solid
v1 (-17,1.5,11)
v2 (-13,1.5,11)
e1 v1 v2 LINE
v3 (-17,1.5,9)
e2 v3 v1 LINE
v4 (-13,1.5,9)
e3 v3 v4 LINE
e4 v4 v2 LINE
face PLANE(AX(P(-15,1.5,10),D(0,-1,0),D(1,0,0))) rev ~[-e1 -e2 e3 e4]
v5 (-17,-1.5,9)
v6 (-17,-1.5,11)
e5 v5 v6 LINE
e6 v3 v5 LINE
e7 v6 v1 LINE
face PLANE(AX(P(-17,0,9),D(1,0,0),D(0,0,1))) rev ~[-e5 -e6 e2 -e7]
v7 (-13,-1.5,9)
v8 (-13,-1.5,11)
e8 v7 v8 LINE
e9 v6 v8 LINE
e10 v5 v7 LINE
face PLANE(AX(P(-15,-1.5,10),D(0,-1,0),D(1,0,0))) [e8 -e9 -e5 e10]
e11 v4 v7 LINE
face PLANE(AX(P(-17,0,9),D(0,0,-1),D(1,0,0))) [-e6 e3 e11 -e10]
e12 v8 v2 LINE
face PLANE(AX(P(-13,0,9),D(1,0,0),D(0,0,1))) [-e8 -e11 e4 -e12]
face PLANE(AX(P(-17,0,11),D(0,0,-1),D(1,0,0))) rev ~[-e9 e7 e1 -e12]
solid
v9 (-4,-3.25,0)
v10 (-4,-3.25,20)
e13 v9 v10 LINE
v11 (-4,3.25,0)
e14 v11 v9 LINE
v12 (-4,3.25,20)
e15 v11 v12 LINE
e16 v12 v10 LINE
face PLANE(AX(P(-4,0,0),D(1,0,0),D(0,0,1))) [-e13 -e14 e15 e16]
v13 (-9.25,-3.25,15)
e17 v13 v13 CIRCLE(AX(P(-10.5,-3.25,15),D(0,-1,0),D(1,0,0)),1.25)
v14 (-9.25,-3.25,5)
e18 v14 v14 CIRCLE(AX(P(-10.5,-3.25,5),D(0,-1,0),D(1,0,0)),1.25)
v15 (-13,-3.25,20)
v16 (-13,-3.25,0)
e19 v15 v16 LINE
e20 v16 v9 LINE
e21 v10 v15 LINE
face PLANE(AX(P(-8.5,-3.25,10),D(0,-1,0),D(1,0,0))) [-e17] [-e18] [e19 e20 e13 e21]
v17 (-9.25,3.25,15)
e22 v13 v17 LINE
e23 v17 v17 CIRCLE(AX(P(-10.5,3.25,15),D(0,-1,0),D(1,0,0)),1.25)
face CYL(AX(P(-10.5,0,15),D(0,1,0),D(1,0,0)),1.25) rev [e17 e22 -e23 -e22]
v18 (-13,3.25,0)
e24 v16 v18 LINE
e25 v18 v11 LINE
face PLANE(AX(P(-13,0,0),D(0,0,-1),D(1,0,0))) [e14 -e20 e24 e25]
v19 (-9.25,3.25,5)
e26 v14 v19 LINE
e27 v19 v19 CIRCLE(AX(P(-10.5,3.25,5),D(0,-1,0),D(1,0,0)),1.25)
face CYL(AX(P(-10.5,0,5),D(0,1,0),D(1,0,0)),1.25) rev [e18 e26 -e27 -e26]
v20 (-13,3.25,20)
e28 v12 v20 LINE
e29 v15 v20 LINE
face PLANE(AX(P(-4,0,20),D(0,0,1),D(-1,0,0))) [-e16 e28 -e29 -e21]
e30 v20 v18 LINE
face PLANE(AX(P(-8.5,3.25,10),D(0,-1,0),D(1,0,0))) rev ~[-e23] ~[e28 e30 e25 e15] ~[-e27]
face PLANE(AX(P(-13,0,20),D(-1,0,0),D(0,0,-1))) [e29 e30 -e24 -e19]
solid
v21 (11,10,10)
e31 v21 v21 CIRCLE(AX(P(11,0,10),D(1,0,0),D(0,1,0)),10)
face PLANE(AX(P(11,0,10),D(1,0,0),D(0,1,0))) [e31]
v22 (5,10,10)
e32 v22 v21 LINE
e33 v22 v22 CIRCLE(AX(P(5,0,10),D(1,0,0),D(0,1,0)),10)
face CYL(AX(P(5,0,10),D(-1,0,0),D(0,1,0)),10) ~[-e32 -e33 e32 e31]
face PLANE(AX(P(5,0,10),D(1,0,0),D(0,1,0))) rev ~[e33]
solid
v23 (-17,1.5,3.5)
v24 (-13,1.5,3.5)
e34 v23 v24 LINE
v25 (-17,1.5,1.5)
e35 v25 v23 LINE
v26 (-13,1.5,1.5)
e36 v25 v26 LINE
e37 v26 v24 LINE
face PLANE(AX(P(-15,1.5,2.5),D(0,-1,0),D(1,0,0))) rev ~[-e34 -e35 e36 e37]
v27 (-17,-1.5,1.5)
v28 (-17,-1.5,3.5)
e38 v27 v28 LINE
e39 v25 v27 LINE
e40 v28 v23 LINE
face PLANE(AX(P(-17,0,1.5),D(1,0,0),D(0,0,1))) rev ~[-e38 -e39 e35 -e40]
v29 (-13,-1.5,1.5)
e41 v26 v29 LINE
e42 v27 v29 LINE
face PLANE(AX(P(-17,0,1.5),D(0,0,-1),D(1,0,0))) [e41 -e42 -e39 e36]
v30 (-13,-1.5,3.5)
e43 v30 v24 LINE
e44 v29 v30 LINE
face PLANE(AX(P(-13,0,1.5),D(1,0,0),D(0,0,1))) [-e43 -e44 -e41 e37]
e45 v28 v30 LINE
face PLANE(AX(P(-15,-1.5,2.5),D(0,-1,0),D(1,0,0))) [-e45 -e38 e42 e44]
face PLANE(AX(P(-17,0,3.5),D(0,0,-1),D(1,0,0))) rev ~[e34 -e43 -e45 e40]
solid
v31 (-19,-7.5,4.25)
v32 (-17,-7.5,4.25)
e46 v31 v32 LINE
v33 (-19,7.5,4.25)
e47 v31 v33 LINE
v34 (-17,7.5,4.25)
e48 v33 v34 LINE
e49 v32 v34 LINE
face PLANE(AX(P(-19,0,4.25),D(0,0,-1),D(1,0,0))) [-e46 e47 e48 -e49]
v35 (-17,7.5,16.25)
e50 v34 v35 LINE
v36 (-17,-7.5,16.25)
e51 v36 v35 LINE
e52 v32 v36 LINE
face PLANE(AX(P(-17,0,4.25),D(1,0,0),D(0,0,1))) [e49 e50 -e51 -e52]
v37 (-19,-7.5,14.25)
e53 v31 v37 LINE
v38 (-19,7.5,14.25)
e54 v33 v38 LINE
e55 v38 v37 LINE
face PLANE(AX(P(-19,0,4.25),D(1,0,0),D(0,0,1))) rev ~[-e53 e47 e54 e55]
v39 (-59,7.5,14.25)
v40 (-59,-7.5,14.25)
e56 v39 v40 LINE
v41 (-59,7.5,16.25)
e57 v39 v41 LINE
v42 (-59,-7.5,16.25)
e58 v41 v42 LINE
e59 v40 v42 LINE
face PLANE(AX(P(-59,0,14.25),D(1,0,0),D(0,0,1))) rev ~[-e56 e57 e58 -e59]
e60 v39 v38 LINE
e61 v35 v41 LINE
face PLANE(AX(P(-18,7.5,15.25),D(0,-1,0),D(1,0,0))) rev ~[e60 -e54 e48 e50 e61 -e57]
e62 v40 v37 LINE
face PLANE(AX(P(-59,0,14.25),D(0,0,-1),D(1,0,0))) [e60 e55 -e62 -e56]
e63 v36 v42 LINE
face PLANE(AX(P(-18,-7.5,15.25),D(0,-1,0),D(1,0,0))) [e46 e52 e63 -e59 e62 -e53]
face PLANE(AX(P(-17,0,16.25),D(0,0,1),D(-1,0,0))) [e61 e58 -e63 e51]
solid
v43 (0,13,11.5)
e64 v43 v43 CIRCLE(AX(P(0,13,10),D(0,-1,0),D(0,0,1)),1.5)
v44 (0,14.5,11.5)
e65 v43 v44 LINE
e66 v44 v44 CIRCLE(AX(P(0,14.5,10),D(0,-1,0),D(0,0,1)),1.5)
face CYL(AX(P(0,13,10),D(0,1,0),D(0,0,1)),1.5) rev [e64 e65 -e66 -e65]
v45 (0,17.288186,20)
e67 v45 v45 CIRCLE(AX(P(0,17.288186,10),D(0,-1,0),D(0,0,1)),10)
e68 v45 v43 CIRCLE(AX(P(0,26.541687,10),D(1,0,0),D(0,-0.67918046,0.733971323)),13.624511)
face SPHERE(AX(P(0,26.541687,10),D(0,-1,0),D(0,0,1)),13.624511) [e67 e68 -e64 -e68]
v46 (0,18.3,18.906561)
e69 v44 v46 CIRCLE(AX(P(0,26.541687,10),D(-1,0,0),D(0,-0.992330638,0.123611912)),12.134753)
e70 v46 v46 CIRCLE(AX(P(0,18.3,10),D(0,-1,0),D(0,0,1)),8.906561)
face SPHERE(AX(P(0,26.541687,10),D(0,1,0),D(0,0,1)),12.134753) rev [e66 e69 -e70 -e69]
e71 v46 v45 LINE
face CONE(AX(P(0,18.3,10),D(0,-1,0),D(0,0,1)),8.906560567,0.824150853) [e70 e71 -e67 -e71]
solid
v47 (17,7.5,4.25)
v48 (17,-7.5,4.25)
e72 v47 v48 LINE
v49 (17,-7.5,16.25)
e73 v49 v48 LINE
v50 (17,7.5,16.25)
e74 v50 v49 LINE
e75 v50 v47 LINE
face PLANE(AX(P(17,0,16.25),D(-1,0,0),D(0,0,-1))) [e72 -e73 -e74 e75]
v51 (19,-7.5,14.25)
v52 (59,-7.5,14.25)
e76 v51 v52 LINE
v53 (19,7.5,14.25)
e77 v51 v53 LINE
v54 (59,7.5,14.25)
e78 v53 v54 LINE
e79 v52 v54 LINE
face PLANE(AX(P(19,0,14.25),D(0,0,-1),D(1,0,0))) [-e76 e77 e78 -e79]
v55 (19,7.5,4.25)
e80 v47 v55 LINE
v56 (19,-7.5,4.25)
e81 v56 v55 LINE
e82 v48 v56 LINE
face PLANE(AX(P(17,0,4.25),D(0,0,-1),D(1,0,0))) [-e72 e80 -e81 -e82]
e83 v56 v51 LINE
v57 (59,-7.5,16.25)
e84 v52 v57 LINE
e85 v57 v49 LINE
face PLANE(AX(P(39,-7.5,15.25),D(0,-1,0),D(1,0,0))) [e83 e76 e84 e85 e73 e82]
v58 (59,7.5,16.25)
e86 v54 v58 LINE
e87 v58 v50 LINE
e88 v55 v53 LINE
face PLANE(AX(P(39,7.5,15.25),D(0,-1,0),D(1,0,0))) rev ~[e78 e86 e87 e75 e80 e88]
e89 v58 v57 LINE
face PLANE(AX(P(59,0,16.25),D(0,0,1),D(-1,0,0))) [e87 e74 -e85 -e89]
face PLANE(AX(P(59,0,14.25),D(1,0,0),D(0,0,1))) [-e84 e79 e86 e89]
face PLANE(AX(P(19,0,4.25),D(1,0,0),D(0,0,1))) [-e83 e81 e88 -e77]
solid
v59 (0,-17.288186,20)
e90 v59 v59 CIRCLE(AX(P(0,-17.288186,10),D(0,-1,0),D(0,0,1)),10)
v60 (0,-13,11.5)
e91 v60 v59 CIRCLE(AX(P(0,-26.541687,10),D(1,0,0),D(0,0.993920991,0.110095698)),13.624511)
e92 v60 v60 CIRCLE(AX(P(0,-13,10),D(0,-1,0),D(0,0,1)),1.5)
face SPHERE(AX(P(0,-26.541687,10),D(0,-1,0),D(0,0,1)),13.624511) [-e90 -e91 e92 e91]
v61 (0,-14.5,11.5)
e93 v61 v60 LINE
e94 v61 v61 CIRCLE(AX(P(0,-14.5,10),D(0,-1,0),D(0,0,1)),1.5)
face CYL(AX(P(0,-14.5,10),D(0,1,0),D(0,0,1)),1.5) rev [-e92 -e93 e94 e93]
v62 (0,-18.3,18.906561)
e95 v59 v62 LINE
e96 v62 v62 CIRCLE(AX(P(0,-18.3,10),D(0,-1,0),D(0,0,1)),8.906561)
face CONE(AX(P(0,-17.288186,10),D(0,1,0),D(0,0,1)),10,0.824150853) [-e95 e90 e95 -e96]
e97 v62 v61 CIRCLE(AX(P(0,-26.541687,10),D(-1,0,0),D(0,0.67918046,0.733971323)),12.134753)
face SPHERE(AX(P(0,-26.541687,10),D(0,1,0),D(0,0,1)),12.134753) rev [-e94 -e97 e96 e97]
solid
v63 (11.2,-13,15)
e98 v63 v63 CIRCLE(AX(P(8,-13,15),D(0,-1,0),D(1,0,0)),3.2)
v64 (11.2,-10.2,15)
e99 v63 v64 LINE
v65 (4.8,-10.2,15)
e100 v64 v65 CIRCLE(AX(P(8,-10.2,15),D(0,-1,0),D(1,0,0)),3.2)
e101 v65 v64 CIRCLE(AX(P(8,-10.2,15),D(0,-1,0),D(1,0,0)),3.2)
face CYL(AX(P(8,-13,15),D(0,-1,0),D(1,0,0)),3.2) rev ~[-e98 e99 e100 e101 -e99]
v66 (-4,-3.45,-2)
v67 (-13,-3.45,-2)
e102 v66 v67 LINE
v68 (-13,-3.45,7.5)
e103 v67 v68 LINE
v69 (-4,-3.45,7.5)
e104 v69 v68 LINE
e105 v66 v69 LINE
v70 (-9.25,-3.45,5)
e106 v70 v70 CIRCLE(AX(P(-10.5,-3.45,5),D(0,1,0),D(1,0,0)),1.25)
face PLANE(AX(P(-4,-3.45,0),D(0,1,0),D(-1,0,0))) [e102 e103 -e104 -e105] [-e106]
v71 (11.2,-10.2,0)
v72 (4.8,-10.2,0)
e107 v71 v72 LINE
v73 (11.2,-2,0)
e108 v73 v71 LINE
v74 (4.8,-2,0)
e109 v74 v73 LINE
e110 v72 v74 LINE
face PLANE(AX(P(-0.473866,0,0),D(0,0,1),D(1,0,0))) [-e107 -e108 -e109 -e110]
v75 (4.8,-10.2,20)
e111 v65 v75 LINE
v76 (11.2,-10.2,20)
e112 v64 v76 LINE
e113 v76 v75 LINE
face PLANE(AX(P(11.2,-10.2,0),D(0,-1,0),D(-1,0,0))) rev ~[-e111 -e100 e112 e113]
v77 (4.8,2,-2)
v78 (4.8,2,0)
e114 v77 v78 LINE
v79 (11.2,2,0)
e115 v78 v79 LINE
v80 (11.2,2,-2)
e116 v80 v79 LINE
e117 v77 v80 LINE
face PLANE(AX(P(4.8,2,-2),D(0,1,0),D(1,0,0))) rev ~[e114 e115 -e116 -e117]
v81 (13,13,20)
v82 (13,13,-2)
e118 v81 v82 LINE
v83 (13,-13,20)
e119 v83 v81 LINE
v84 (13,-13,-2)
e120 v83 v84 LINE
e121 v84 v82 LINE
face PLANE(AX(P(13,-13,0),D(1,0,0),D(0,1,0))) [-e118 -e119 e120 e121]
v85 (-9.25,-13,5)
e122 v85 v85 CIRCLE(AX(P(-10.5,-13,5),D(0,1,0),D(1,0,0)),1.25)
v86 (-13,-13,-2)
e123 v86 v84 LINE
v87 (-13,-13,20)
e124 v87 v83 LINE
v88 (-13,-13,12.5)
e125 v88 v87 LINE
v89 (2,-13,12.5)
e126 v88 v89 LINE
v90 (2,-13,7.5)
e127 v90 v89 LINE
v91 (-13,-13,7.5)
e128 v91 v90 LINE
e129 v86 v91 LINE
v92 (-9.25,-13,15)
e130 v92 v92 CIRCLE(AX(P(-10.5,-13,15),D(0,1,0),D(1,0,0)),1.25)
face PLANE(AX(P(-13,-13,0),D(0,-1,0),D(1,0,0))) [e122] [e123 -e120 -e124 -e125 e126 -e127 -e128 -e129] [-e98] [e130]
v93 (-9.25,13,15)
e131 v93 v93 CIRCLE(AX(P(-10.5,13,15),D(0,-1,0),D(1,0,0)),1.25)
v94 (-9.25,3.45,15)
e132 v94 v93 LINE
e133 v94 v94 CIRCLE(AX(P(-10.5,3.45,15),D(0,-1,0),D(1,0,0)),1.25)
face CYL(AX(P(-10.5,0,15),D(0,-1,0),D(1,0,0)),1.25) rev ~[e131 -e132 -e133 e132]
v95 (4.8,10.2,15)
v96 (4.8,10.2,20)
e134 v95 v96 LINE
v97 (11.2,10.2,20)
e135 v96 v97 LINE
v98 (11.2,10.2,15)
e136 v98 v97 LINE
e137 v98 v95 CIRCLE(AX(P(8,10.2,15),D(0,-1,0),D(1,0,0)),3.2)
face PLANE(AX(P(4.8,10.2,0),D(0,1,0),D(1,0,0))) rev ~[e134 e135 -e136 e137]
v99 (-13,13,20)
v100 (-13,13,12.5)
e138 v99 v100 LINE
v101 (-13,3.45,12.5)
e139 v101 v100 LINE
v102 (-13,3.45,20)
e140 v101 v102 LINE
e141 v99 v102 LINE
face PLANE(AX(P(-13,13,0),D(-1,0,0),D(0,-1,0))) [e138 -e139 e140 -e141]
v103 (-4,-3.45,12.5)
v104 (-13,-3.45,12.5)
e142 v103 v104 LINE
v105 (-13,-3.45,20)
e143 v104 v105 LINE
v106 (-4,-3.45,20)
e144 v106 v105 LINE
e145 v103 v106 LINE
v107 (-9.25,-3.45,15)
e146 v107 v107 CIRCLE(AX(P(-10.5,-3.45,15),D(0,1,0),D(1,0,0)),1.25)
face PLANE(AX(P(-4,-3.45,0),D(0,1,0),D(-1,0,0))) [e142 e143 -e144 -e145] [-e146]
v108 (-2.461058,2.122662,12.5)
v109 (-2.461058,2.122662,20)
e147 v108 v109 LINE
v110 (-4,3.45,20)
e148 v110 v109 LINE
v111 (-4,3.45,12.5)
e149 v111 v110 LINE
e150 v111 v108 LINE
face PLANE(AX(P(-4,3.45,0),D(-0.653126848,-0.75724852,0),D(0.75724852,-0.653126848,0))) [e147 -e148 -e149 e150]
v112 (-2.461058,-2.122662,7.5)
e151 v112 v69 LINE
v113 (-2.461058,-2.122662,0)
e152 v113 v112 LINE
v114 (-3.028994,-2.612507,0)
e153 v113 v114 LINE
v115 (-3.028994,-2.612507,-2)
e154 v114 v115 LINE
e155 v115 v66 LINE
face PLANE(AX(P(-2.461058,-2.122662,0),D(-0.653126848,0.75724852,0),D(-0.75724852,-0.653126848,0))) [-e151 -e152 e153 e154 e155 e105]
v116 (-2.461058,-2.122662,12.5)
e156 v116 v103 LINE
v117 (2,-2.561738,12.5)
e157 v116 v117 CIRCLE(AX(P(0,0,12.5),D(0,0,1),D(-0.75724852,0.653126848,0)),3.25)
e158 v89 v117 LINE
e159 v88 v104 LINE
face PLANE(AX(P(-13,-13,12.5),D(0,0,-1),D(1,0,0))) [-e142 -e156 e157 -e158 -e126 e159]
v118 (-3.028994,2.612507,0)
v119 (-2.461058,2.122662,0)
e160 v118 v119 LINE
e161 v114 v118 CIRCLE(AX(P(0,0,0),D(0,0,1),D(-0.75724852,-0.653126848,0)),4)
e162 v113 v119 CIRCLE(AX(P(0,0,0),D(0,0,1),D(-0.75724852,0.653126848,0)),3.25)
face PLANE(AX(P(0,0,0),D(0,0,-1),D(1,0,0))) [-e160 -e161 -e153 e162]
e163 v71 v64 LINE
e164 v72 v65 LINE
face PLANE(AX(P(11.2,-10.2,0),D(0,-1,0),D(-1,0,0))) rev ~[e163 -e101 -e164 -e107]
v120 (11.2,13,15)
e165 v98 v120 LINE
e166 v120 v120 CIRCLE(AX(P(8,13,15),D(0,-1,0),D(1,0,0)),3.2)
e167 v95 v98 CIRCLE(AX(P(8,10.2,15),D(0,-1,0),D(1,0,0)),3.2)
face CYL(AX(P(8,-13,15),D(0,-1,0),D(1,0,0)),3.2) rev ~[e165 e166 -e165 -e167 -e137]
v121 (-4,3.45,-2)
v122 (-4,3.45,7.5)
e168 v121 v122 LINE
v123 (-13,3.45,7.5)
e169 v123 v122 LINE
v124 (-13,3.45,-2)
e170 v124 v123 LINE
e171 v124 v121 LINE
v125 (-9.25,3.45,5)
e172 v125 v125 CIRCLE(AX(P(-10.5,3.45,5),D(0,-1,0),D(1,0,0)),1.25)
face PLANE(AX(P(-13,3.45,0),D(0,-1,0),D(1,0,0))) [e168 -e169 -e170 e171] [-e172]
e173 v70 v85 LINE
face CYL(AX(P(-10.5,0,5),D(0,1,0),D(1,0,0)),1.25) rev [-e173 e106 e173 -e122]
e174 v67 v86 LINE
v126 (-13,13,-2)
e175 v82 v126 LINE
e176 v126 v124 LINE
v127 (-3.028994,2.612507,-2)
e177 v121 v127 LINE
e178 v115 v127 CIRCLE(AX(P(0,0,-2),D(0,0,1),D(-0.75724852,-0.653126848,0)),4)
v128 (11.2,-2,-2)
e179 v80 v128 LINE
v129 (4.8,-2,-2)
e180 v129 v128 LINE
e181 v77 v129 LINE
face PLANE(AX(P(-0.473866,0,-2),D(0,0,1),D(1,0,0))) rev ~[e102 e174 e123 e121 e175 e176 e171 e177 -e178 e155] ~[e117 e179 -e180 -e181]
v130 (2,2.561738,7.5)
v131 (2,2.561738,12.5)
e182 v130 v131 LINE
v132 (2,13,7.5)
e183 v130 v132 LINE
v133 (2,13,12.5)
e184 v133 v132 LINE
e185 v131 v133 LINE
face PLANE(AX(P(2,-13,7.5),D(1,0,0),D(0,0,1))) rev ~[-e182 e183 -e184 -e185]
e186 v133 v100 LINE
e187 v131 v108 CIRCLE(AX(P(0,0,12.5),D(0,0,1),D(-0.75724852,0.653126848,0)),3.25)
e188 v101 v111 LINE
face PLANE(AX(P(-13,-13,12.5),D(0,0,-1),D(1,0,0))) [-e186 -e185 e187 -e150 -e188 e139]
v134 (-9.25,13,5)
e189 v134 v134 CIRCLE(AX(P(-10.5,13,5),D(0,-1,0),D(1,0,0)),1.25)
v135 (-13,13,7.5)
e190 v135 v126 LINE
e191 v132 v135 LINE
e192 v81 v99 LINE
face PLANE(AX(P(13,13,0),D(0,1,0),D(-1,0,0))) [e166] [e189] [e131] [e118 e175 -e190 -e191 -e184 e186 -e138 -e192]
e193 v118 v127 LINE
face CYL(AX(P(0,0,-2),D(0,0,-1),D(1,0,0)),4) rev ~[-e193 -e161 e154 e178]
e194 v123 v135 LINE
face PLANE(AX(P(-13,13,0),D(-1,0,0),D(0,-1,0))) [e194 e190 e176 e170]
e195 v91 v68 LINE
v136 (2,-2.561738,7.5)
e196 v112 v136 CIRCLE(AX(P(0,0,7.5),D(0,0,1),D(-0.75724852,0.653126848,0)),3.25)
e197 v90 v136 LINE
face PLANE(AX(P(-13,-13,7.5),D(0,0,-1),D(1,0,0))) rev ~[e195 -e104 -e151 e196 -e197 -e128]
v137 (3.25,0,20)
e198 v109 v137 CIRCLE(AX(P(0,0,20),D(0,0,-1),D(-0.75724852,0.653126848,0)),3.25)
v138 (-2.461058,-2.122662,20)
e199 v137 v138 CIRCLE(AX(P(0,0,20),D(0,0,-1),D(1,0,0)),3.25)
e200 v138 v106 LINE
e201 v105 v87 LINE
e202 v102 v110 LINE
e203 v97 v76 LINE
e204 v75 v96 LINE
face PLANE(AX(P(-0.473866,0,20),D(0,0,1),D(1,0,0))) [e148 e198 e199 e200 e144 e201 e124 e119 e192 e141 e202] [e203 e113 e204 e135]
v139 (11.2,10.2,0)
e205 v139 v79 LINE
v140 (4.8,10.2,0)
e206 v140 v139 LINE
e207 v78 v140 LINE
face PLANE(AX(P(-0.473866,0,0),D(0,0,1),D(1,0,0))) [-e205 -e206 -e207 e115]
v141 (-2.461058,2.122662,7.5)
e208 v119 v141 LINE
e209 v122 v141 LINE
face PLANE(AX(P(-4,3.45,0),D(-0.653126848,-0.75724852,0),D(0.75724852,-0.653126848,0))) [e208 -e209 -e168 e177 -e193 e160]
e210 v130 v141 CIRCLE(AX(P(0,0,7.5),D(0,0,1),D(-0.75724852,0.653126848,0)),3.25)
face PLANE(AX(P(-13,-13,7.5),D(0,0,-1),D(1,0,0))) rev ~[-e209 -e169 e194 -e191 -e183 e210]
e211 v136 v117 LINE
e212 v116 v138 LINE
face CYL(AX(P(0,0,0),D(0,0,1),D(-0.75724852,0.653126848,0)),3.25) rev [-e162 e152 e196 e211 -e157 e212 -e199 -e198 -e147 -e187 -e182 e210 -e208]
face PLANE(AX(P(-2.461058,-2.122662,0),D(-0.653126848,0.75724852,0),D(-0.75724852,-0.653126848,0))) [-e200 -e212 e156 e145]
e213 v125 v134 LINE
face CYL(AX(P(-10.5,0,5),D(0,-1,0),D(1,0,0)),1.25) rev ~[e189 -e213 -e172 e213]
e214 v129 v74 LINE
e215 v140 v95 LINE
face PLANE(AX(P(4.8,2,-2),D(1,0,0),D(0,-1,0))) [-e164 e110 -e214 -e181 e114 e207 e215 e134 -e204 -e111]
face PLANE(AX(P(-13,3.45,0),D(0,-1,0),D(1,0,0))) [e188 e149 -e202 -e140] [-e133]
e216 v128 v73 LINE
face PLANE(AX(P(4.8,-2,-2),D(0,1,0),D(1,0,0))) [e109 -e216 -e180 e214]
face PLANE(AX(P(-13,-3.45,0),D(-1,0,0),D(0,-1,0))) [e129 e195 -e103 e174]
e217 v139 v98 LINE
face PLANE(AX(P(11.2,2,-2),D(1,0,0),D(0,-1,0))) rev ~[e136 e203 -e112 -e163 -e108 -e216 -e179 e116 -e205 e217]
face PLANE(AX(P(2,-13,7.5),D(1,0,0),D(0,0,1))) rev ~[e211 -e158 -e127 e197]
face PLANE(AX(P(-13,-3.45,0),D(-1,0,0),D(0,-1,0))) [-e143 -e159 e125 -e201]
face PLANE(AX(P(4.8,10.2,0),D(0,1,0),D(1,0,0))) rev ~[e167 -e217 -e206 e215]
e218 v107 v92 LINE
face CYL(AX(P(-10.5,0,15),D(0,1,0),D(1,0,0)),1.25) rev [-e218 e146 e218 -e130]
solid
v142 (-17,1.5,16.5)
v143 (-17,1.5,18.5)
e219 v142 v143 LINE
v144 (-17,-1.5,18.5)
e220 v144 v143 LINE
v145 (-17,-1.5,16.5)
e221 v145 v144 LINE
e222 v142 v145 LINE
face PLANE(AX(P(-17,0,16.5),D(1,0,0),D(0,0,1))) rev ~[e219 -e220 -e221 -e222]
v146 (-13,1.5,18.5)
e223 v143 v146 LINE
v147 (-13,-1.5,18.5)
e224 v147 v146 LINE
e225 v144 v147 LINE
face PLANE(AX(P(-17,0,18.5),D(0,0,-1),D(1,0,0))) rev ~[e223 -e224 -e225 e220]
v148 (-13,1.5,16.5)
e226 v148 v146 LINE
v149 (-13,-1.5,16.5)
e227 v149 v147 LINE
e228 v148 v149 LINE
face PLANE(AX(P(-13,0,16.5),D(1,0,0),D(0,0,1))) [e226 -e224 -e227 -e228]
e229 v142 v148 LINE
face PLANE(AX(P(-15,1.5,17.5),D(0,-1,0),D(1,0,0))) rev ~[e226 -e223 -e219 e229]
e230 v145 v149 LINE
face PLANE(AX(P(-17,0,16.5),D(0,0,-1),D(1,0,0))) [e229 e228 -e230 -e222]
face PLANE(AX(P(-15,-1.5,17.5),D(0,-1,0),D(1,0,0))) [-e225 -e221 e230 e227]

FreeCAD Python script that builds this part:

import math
import FreeCAD as App
import Part
import Sketcher
Q = App.Units.Quantity

doc = App.newDocument("Part")
params = doc.addObject("Spreadsheet::Sheet", "Params")
for row, (alias, value) in enumerate([
    ("sketch1_diameter", "2.5 mm"),
    ("sketch1_width", "9 mm"),
    ("sketch1_height", "20 mm"),
    ("pad1_length", "6.5 mm"),
    ("sketch2_width", "4 mm"),
    ("sketch2_height", "2 mm"),
    ("pad2_length", "3 mm"),
    ("sketch3_width", "4 mm"),
    ("sketch3_height", "2 mm"),
    ("pad3_length", "3 mm"),
    ("sketch4_width", "4 mm"),
    ("sketch4_height", "2 mm"),
    ("pad4_length", "3 mm"),
    ("sketch5_diameter", "20 mm"),
    ("pad5_length", "6 mm"),
    ("sketch6_width", "9 mm"),
    ("sketch6_width2", "26 mm"),
    ("sketch6_radius", "3.25 mm"),
    ("sketch6_width3", "6.4 mm"),
    ("sketch6_height", "20.4 mm"),
    ("pad6_length", "20 mm"),
    ("sketch7_width", "9 mm"),
    ("sketch7_width2", "26 mm"),
    ("sketch7_radius", "3.25 mm"),
    ("sketch7_height", "9.55 mm"),
    ("pad7_length", "2 mm"),
    ("sketch8_diameter", "2.5 mm"),
    ("sketch9_diameter", "6.4 mm"),
    ("sketch9_width", "15 mm"),
    ("sketch9_height", "5 mm"),
    ("sketch10_diameter", "8 mm"),
    ("pocket3_length", "2 mm"),
    ("sketch11_height", "4 mm"),
    ("sketch11_width", "6.4 mm"),
    ("sketch12_width", "1.5 mm"),
    ("revolution_angle", "360 deg"),
    ("sketch13_width", "1.5 mm"),
    ("revolution2_angle", "360 deg"),
    ("sketch14_width", "42 mm"),
    ("sketch14_width2", "40 mm"),
    ("sketch14_height", "10 mm"),
    ("pad8_length", "15 mm"),
    ("sketch15_width", "42 mm"),
    ("sketch15_width2", "2 mm"),
    ("sketch15_height", "12 mm"),
    ("pad9_length", "15 mm"),
], start=1):
    params.set(f"A{row}", alias)
    params.set(f"B{row}", "=" + value)
    params.setAlias(f"B{row}", alias)

body = doc.addObject("PartDesign::Body", "Body")

# Sketch on XZ plane
sketch1 = body.newObject("Sketcher::SketchObject", "Sketch")
sketch1.AttachmentSupport = (doc.getObject("XZ_Plane"), [""])
sketch1.MapMode = "FlatFace"
sketch1.addGeometry([
    Part.LineSegment(App.Vector(-13, 0, 0), App.Vector(-4, 0, 0)),  # 0
    Part.LineSegment(App.Vector(-4, 0, 0), App.Vector(-4, 20, 0)),  # 1
    Part.LineSegment(App.Vector(-4, 20, 0), App.Vector(-13, 20, 0)),  # 2
    Part.LineSegment(App.Vector(-13, 20, 0), App.Vector(-13, 0, 0)),  # 3
    Part.Circle(App.Vector(-10.5, 5, 0), App.Vector(0, 0, 1), 1.2),  # 4
    Part.Circle(App.Vector(-10.5, 15, 0), App.Vector(0, 0, 1), 1.2),  # 5
], False)
sketch1.addConstraint([
    Sketcher.Constraint("Coincident", 0, 2, 1, 1),
    Sketcher.Constraint("Coincident", 1, 2, 2, 1),
    Sketcher.Constraint("Coincident", 2, 2, 3, 1),
    Sketcher.Constraint("Coincident", 3, 2, 0, 1),
    Sketcher.Constraint("Horizontal", 0),
    Sketcher.Constraint("Vertical", 1),
    Sketcher.Constraint("Horizontal", 2),
    Sketcher.Constraint("Vertical", 3),
    Sketcher.Constraint("Equal", 4, 5),
    Sketcher.Constraint("PointOnObject", 0, 2, -1),
    Sketcher.Constraint("Vertical", 4, 3, 5, 3),
    Sketcher.Constraint("Diameter", 4, Q("2.5 mm")),
    Sketcher.Constraint("DistanceX", 0, 1, 0, 2, Q("9 mm")),
    Sketcher.Constraint("DistanceY", 1, 1, 1, 2, Q("20 mm")),
    Sketcher.Constraint("DistanceY", -1, 1, 4, 3, Q("5 mm")),
    Sketcher.Constraint("DistanceY", -1, 1, 5, 3, Q("15 mm")),
    Sketcher.Constraint("DistanceX", 0, 2, -1, 1, Q("4 mm")),
    Sketcher.Constraint("DistanceX", 4, 3, -1, 1, Q("10.5 mm")),
])
sketch1.setExpression("Constraints[11]", "Params.sketch1_diameter")
sketch1.setExpression("Constraints[12]", "Params.sketch1_width")
sketch1.setExpression("Constraints[13]", "Params.sketch1_height")
pad1 = body.newObject("PartDesign::Pad", "Pad")
pad1.Profile = sketch1
pad1.setExpression("Length", "Params.pad1_length")
pad1.Midplane = True
body2 = doc.addObject("PartDesign::Body", "Body001")

# Sketch on XZ plane
sketch2 = body2.newObject("Sketcher::SketchObject", "Sketch001")
sketch2.AttachmentSupport = (doc.getObject("XZ_Plane001"), [""])
sketch2.MapMode = "FlatFace"
sketch2.addGeometry([
    Part.LineSegment(App.Vector(-17, 18.5, 0), App.Vector(-17, 16.5, 0)),
    Part.LineSegment(App.Vector(-17, 16.5, 0), App.Vector(-13, 16.5, 0)),
    Part.LineSegment(App.Vector(-13, 16.5, 0), App.Vector(-13, 18.5, 0)),
    Part.LineSegment(App.Vector(-13, 18.5, 0), App.Vector(-17, 18.5, 0)),
], False)
sketch2.addConstraint([
    Sketcher.Constraint("Coincident", 0, 2, 1, 1),
    Sketcher.Constraint("Coincident", 1, 2, 2, 1),
    Sketcher.Constraint("Coincident", 2, 2, 3, 1),
    Sketcher.Constraint("Coincident", 3, 2, 0, 1),
    Sketcher.Constraint("Vertical", 0),
    Sketcher.Constraint("Horizontal", 1),
    Sketcher.Constraint("Vertical", 2),
    Sketcher.Constraint("Horizontal", 3),
    Sketcher.Constraint("DistanceX", 1, 1, 1, 2, Q("4 mm")),
    Sketcher.Constraint("DistanceY", 0, 2, 0, 1, Q("2 mm")),
    Sketcher.Constraint("DistanceX", 0, 2, -1, 1, Q("17 mm")),
    Sketcher.Constraint("DistanceY", -1, 1, 0, 2, Q("16.5 mm")),
])
sketch2.setExpression("Constraints[8]", "Params.sketch2_width")
sketch2.setExpression("Constraints[9]", "Params.sketch2_height")
pad2 = body2.newObject("PartDesign::Pad", "Pad001")
pad2.Profile = sketch2
pad2.setExpression("Length", "Params.pad2_length")
pad2.Midplane = True
body3 = doc.addObject("PartDesign::Body", "Body002")

# Sketch on XZ plane
sketch3 = body3.newObject("Sketcher::SketchObject", "Sketch002")
sketch3.AttachmentSupport = (doc.getObject("XZ_Plane002"), [""])
sketch3.MapMode = "FlatFace"
sketch3.addGeometry([
    Part.LineSegment(App.Vector(-17, 11, 0), App.Vector(-17, 9, 0)),
    Part.LineSegment(App.Vector(-17, 9, 0), App.Vector(-13, 9, 0)),
    Part.LineSegment(App.Vector(-13, 9, 0), App.Vector(-13, 11, 0)),
    Part.LineSegment(App.Vector(-13, 11, 0), App.Vector(-17, 11, 0)),
], False)
sketch3.addConstraint([
    Sketcher.Constraint("Coincident", 0, 2, 1, 1),
    Sketcher.Constraint("Coincident", 1, 2, 2, 1),
    Sketcher.Constraint("Coincident", 2, 2, 3, 1),
    Sketcher.Constraint("Coincident", 3, 2, 0, 1),
    Sketcher.Constraint("Vertical", 0),
    Sketcher.Constraint("Horizontal", 1),
    Sketcher.Constraint("Vertical", 2),
    Sketcher.Constraint("Horizontal", 3),
    Sketcher.Constraint("DistanceX", 1, 1, 1, 2, Q("4 mm")),
    Sketcher.Constraint("DistanceY", 0, 2, 0, 1, Q("2 mm")),
    Sketcher.Constraint("DistanceX", 0, 2, -1, 1, Q("17 mm")),
    Sketcher.Constraint("DistanceY", -1, 1, 0, 2, Q("9 mm")),
])
sketch3.setExpression("Constraints[8]", "Params.sketch3_width")
sketch3.setExpression("Constraints[9]", "Params.sketch3_height")
pad3 = body3.newObject("PartDesign::Pad", "Pad002")
pad3.Profile = sketch3
pad3.setExpression("Length", "Params.pad3_length")
pad3.Midplane = True
body4 = doc.addObject("PartDesign::Body", "Body003")

# Sketch on XZ plane
sketch4 = body4.newObject("Sketcher::SketchObject", "Sketch003")
sketch4.AttachmentSupport = (doc.getObject("XZ_Plane003"), [""])
sketch4.MapMode = "FlatFace"
sketch4.addGeometry([
    Part.LineSegment(App.Vector(-17, 3.5, 0), App.Vector(-17, 1.5, 0)),
    Part.LineSegment(App.Vector(-17, 1.5, 0), App.Vector(-13, 1.5, 0)),
    Part.LineSegment(App.Vector(-13, 1.5, 0), App.Vector(-13, 3.5, 0)),
    Part.LineSegment(App.Vector(-13, 3.5, 0), App.Vector(-17, 3.5, 0)),
], False)
sketch4.addConstraint([
    Sketcher.Constraint("Coincident", 0, 2, 1, 1),
    Sketcher.Constraint("Coincident", 1, 2, 2, 1),
    Sketcher.Constraint("Coincident", 2, 2, 3, 1),
    Sketcher.Constraint("Coincident", 3, 2, 0, 1),
    Sketcher.Constraint("Vertical", 0),
    Sketcher.Constraint("Horizontal", 1),
    Sketcher.Constraint("Vertical", 2),
    Sketcher.Constraint("Horizontal", 3),
    Sketcher.Constraint("DistanceX", 1, 1, 1, 2, Q("4 mm")),
    Sketcher.Constraint("DistanceY", 0, 2, 0, 1, Q("2 mm")),
    Sketcher.Constraint("DistanceX", 0, 2, -1, 1, Q("17 mm")),
    Sketcher.Constraint("DistanceY", -1, 1, 0, 2, Q("1.5 mm")),
])
sketch4.setExpression("Constraints[8]", "Params.sketch4_width")
sketch4.setExpression("Constraints[9]", "Params.sketch4_height")
pad4 = body4.newObject("PartDesign::Pad", "Pad003")
pad4.Profile = sketch4
pad4.setExpression("Length", "Params.pad4_length")
pad4.Midplane = True
body5 = doc.addObject("PartDesign::Body", "Body004")

# Sketch on YZ plane
sketch5 = body5.newObject("Sketcher::SketchObject", "Sketch004")
sketch5.AttachmentSupport = (doc.getObject("YZ_Plane004"), [""])
sketch5.MapMode = "FlatFace"
sketch5.AttachmentOffset = App.Placement(App.Vector(0, 0, 5), App.Rotation())
sketch5.addGeometry(Part.Circle(App.Vector(0, 10, 0), App.Vector(0, 0, 1), 10), False)
sketch5.addConstraint([
    Sketcher.Constraint("PointOnObject", 0, 3, -2),
    Sketcher.Constraint("Diameter", 0, Q("20 mm")),
    Sketcher.Constraint("DistanceY", -1, 1, 0, 3, Q("10 mm")),
])
sketch5.setExpression("Constraints[1]", "Params.sketch5_diameter")
pad5 = body5.newObject("PartDesign::Pad", "Pad004")
pad5.Profile = sketch5
pad5.setExpression("Length", "Params.pad5_length")
body6 = doc.addObject("PartDesign::Body", "Body005")

# Sketch on XY plane
sketch6 = body6.newObject("Sketcher::SketchObject", "Sketch005")
sketch6.AttachmentSupport = (doc.getObject("XY_Plane005"), [""])
sketch6.MapMode = "FlatFace"
sketch6.addGeometry([
    Part.LineSegment(App.Vector(-13, 13, 0), App.Vector(-13, 3.5, 0)),  # 0
    Part.LineSegment(App.Vector(-13, 3.5, 0), App.Vector(-4, 3.5, 0)),  # 1
    Part.LineSegment(App.Vector(-4, 3.5, 0), App.Vector(-2.5, 2.1, 0)),  # 2
    Part.ArcOfCircle(Part.Circle(App.Vector(0, 0, 0), App.Vector(0, 0, 1), 3.2), math.radians(0), math.radians(139)),  # 3
    Part.ArcOfCircle(Part.Circle(App.Vector(0, 0, 0), App.Vector(0, 0, 1), 3.2), math.radians(-139), math.radians(0)),  # 4
    Part.LineSegment(App.Vector(-2.5, -2.1, 0), App.Vector(-4, -3.5, 0)),  # 5
    Part.LineSegment(App.Vector(-4, -3.5, 0), App.Vector(-13, -3.5, 0)),  # 6
    Part.LineSegment(App.Vector(-13, -3.5, 0), App.Vector(-13, -13, 0)),  # 7
    Part.LineSegment(App.Vector(-13, -13, 0), App.Vector(13, -13, 0)),  # 8
    Part.LineSegment(App.Vector(13, -13, 0), App.Vector(13, 13, 0)),  # 9
    Part.LineSegment(App.Vector(13, 13, 0), App.Vector(-13, 13, 0)),  # 10
    Part.LineSegment(App.Vector(4.8, 10.2, 0), App.Vector(11.2, 10.2, 0)),  # 11
    Part.LineSegment(App.Vector(11.2, 10.2, 0), App.Vector(11.2, -10.2, 0)),  # 12
    Part.LineSegment(App.Vector(11.2, -10.2, 0), App.Vector(4.8, -10.2, 0)),  # 13
    Part.LineSegment(App.Vector(4.8, -10.2, 0), App.Vector(4.8, 10.2, 0)),  # 14
], False)
sketch6.addConstraint([
    Sketcher.Constraint("Coincident", 0, 2, 1, 1),
    Sketcher.Constraint("Coincident", 1, 2, 2, 1),
    Sketcher.Constraint("Coincident", 2, 2, 3, 2),
    Sketcher.Constraint("Tangent", 3, 1, 4, 2),
    Sketcher.Constraint("Coincident", 4, 1, 5, 1),
    Sketcher.Constraint("Coincident", 5, 2, 6, 1),
    Sketcher.Constraint("Coincident", 6, 2, 7, 1),
    Sketcher.Constraint("Coincident", 7, 2, 8, 1),
    Sketcher.Constraint("Coincident", 8, 2, 9, 1),
    Sketcher.Constraint("Coincident", 9, 2, 10, 1),
    Sketcher.Constraint("Coincident", 10, 2, 0, 1),
    Sketcher.Constraint("Coincident", 11, 2, 12, 1),
    Sketcher.Constraint("Coincident", 12, 2, 13, 1),
    Sketcher.Constraint("Coincident", 13, 2, 14, 1),
    Sketcher.Constraint("Coincident", 14, 2, 11, 1),
    Sketcher.Constraint("Vertical", 0),
    Sketcher.Constraint("Horizontal", 1),
    Sketcher.Constraint("Horizontal", 6),
    Sketcher.Constraint("Vertical", 7),
    Sketcher.Constraint("Horizontal", 8),
    Sketcher.Constraint("Vertical", 9),
    Sketcher.Constraint("Horizontal", 10),
    Sketcher.Constraint("Horizontal", 11),
    Sketcher.Constraint("Vertical", 12),
    Sketcher.Constraint("Horizontal", 13),
    Sketcher.Constraint("Vertical", 14),
    Sketcher.Constraint("Coincident", 3, 3, -1, 1),
    Sketcher.Constraint("Equal", 3, 4),
    Sketcher.Constraint("Symmetric", 7, 2, 9, 2, -1, 1),
    Sketcher.Constraint("Symmetric", 1, 2, 5, 2, -1),
    Sketcher.Constraint("PointOnObject", 3, 1, -1),
    Sketcher.Constraint("Vertical", 2, 2, 4, 1),
    Sketcher.Constraint("Vertical", 0, 2, 6, 2),
    Sketcher.Constraint("Equal", 10, 9),
    Sketcher.Constraint("DistanceX", 1, 1, 1, 2, Q("9 mm")),
    Sketcher.Constraint("DistanceX", 8, 1, 8, 2, Q("26 mm")),
    Sketcher.Constraint("Radius", 3, Q("3.25 mm")),
    Sketcher.Constraint("DistanceX", 11, 1, 11, 2, Q("6.4 mm")),
    Sketcher.Constraint("DistanceY", 12, 2, 12, 1, Q("20.4 mm")),
    Sketcher.Constraint("DistanceY", 0, 2, 0, 1, Q("9.55 mm")),
    Sketcher.Constraint("DistanceX", -1, 1, 11, 2, Q("11.2 mm")),
    Sketcher.Constraint("DistanceY", -1, 1, 11, 2, Q("10.2 mm")),
    Sketcher.Constraint("DistanceX", 2, 2, -1, 1, Q("2.461058 mm")),
])
sketch6.setExpression("Constraints[34]", "Params.sketch6_width")
sketch6.setExpression("Constraints[35]", "Params.sketch6_width2")
sketch6.setExpression("Constraints[36]", "Params.sketch6_radius")
sketch6.setExpression("Constraints[37]", "Params.sketch6_width3")
sketch6.setExpression("Constraints[38]", "Params.sketch6_height")
pad6 = body6.newObject("PartDesign::Pad", "Pad005")
pad6.Profile = sketch6
pad6.setExpression("Length", "Params.pad6_length")

# Sketch on XY plane
sketch7 = body6.newObject("Sketcher::SketchObject", "Sketch006")
sketch7.AttachmentSupport = (doc.getObject("XY_Plane005"), [""])
sketch7.MapMode = "FlatFace"
sketch7.addGeometry([
    Part.LineSegment(App.Vector(-13, 13, 0), App.Vector(-13, 3.5, 0)),  # 0
    Part.LineSegment(App.Vector(-13, 3.5, 0), App.Vector(-4, 3.5, 0)),  # 1
    Part.LineSegment(App.Vector(-4, 3.5, 0), App.Vector(-2.5, 2.1, 0)),  # 2
    Part.ArcOfCircle(Part.Circle(App.Vector(0, 0, 0), App.Vector(0, 0, 1), 3.2), math.radians(0), math.radians(139)),  # 3
    Part.ArcOfCircle(Part.Circle(App.Vector(0, 0, 0), App.Vector(0, 0, 1), 3.2), math.radians(-139), math.radians(0)),  # 4
    Part.LineSegment(App.Vector(-2.5, -2.1, 0), App.Vector(-4, -3.5, 0)),  # 5
    Part.LineSegment(App.Vector(-4, -3.5, 0), App.Vector(-13, -3.5, 0)),  # 6
    Part.LineSegment(App.Vector(-13, -3.5, 0), App.Vector(-13, -13, 0)),  # 7
    Part.LineSegment(App.Vector(-13, -13, 0), App.Vector(13, -13, 0)),  # 8
    Part.LineSegment(App.Vector(13, -13, 0), App.Vector(13, 13, 0)),  # 9
    Part.LineSegment(App.Vector(13, 13, 0), App.Vector(-13, 13, 0)),  # 10
], False)
sketch7.addConstraint([
    Sketcher.Constraint("Coincident", 0, 2, 1, 1),
    Sketcher.Constraint("Coincident", 1, 2, 2, 1),
    Sketcher.Constraint("Coincident", 2, 2, 3, 2),
    Sketcher.Constraint("Tangent", 3, 1, 4, 2),
    Sketcher.Constraint("Coincident", 4, 1, 5, 1),
    Sketcher.Constraint("Coincident", 5, 2, 6, 1),
    Sketcher.Constraint("Coincident", 6, 2, 7, 1),
    Sketcher.Constraint("Coincident", 7, 2, 8, 1),
    Sketcher.Constraint("Coincident", 8, 2, 9, 1),
    Sketcher.Constraint("Coincident", 9, 2, 10, 1),
    Sketcher.Constraint("Coincident", 10, 2, 0, 1),
    Sketcher.Constraint("Vertical", 0),
    Sketcher.Constraint("Horizontal", 1),
    Sketcher.Constraint("Horizontal", 6),
    Sketcher.Constraint("Vertical", 7),
    Sketcher.Constraint("Horizontal", 8),
    Sketcher.Constraint("Vertical", 9),
    Sketcher.Constraint("Horizontal", 10),
    Sketcher.Constraint("Coincident", 3, 3, -1, 1),
    Sketcher.Constraint("Equal", 3, 4),
    Sketcher.Constraint("Symmetric", 7, 2, 9, 2, -1, 1),
    Sketcher.Constraint("Symmetric", 1, 2, 5, 2, -1),
    Sketcher.Constraint("PointOnObject", 3, 1, -1),
    Sketcher.Constraint("Vertical", 2, 2, 4, 1),
    Sketcher.Constraint("Vertical", 0, 2, 6, 2),
    Sketcher.Constraint("Equal", 10, 9),
    Sketcher.Constraint("DistanceX", 1, 1, 1, 2, Q("9 mm")),
    Sketcher.Constraint("DistanceX", 8, 1, 8, 2, Q("26 mm")),
    Sketcher.Constraint("Radius", 3, Q("3.25 mm")),
    Sketcher.Constraint("DistanceY", 0, 2, 0, 1, Q("9.55 mm")),
    Sketcher.Constraint("DistanceX", 2, 2, -1, 1, Q("2.461058 mm")),
])
sketch7.setExpression("Constraints[26]", "Params.sketch7_width")
sketch7.setExpression("Constraints[27]", "Params.sketch7_width2")
sketch7.setExpression("Constraints[28]", "Params.sketch7_radius")
sketch7.setExpression("Constraints[29]", "Params.sketch7_height")
pad7 = body6.newObject("PartDesign::Pad", "Pad006")
pad7.Profile = sketch7
pad7.setExpression("Length", "Params.pad7_length")
pad7.Reversed = True

# Sketch on XZ plane
sketch8 = body6.newObject("Sketcher::SketchObject", "Sketch007")
sketch8.AttachmentSupport = (doc.getObject("XZ_Plane005"), [""])
sketch8.MapMode = "FlatFace"
sketch8.addGeometry([
    Part.Circle(App.Vector(-10.5, 15, 0), App.Vector(0, 0, 1), 1.2),
    Part.Circle(App.Vector(-10.5, 5, 0), App.Vector(0, 0, 1), 1.2),
], False)
sketch8.addConstraint([
    Sketcher.Constraint("Equal", 0, 1),
    Sketcher.Constraint("Vertical", 0, 3, 1, 3),
    Sketcher.Constraint("Diameter", 0, Q("2.5 mm")),
    Sketcher.Constraint("DistanceY", -1, 1, 0, 3, Q("15 mm")),
    Sketcher.Constraint("DistanceY", -1, 1, 1, 3, Q("5 mm")),
    Sketcher.Constraint("DistanceX", 0, 3, -1, 1, Q("10.5 mm")),
])
sketch8.setExpression("Constraints[2]", "Params.sketch8_diameter")
pocket1 = body6.newObject("PartDesign::Pocket", "Pocket")
pocket1.Profile = sketch8
pocket1.Type = "ThroughAll"
pocket1.Midplane = True

# Sketch on XZ plane
sketch9 = body6.newObject("Sketcher::SketchObject", "Sketch008")
sketch9.AttachmentSupport = (doc.getObject("XZ_Plane005"), [""])
sketch9.MapMode = "FlatFace"
sketch9.AttachmentOffset = App.Placement(App.Vector(0, 0, 13), App.Rotation())
sketch9.addGeometry([
    Part.LineSegment(App.Vector(-13, 12.5, 0), App.Vector(-13, 7.5, 0)),  # 0
    Part.LineSegment(App.Vector(-13, 7.5, 0), App.Vector(2, 7.5, 0)),  # 1
    Part.LineSegment(App.Vector(2, 7.5, 0), App.Vector(2, 12.5, 0)),  # 2
    Part.LineSegment(App.Vector(2, 12.5, 0), App.Vector(-13, 12.5, 0)),  # 3
    Part.Circle(App.Vector(8, 15, 0), App.Vector(0, 0, 1), 3.2),  # 4
], False)
sketch9.addConstraint([
    Sketcher.Constraint("Coincident", 0, 2, 1, 1),
    Sketcher.Constraint("Coincident", 1, 2, 2, 1),
    Sketcher.Constraint("Coincident", 2, 2, 3, 1),
    Sketcher.Constraint("Coincident", 3, 2, 0, 1),
    Sketcher.Constraint("Vertical", 0),
    Sketcher.Constraint("Horizontal", 1),
    Sketcher.Constraint("Vertical", 2),
    Sketcher.Constraint("Horizontal", 3),
    Sketcher.Constraint("Diameter", 4, Q("6.4 mm")),
    Sketcher.Constraint("DistanceX", 1, 1, 1, 2, Q("15 mm")),
    Sketcher.Constraint("DistanceY", 0, 2, 0, 1, Q("5 mm")),
    Sketcher.Constraint("DistanceX", -1, 1, 4, 3, Q("8 mm")),
    Sketcher.Constraint("DistanceY", -1, 1, 4, 3, Q("15 mm")),
    Sketcher.Constraint("DistanceX", 0, 2, -1, 1, Q("13 mm")),
    Sketcher.Constraint("DistanceY", -1, 1, 0, 2, Q("7.5 mm")),
])
sketch9.setExpression("Constraints[8]", "Params.sketch9_diameter")
sketch9.setExpression("Constraints[9]", "Params.sketch9_width")
sketch9.setExpression("Constraints[10]", "Params.sketch9_height")
pocket2 = body6.newObject("PartDesign::Pocket", "Pocket001")
pocket2.Profile = sketch9
pocket2.Type = "ThroughAll"

# Sketch on XY plane
sketch10 = body6.newObject("Sketcher::SketchObject", "Sketch009")
sketch10.AttachmentSupport = (doc.getObject("XY_Plane005"), [""])
sketch10.MapMode = "FlatFace"
sketch10.AttachmentOffset = App.Placement(App.Vector(0, 0, -2), App.Rotation())
sketch10.addGeometry(Part.Circle(App.Vector(0, 0, 0), App.Vector(0, 0, 1), 4), False)
sketch10.addConstraint([
    Sketcher.Constraint("Coincident", 0, 3, -1, 1),
    Sketcher.Constraint("Diameter", 0, Q("8 mm")),
])
sketch10.setExpression("Constraints[1]", "Params.sketch10_diameter")
pocket3 = body6.newObject("PartDesign::Pocket", "Pocket002")
pocket3.Profile = sketch10
pocket3.setExpression("Length", "Params.pocket3_length")
pocket3.Reversed = True

# Sketch on XY plane
sketch11 = body6.newObject("Sketcher::SketchObject", "Sketch010")
sketch11.AttachmentSupport = (doc.getObject("XY_Plane005"), [""])
sketch11.MapMode = "FlatFace"
sketch11.AttachmentOffset = App.Placement(App.Vector(0, 0, -2), App.Rotation())
sketch11.addGeometry([
    Part.LineSegment(App.Vector(4.8, -2, 0), App.Vector(4.8, 2, 0)),
    Part.LineSegment(App.Vector(4.8, 2, 0), App.Vector(11.2, 2, 0)),
    Part.LineSegment(App.Vector(11.2, 2, 0), App.Vector(11.2, -2, 0)),
    Part.LineSegment(App.Vector(11.2, -2, 0), App.Vector(4.8, -2, 0)),
], False)
sketch11.addConstraint([
    Sketcher.Constraint("Coincident", 0, 2, 1, 1),
    Sketcher.Constraint("Coincident", 1, 2, 2, 1),
    Sketcher.Constraint("Coincident", 2, 2, 3, 1),
    Sketcher.Constraint("Coincident", 3, 2, 0, 1),
    Sketcher.Constraint("Vertical", 0),
    Sketcher.Constraint("Horizontal", 1),
    Sketcher.Constraint("Vertical", 2),
    Sketcher.Constraint("Horizontal", 3),
    Sketcher.Constraint("DistanceY", 0, 1, 0, 2, Q("4 mm")),
    Sketcher.Constraint("DistanceX", 1, 1, 1, 2, Q("6.4 mm")),
    Sketcher.Constraint("DistanceY", -1, 1, 0, 2, Q("2 mm")),
    Sketcher.Constraint("DistanceX", -1, 1, 0, 2, Q("4.8 mm")),
])
sketch11.setExpression("Constraints[8]", "Params.sketch11_height")
sketch11.setExpression("Constraints[9]", "Params.sketch11_width")
pocket4 = body6.newObject("PartDesign::Pocket", "Pocket003")
pocket4.Profile = sketch11
pocket4.Type = "ThroughAll"
pocket4.Reversed = True
body7 = doc.addObject("PartDesign::Body", "Body006")

# Sketch on YZ plane
sketch12 = body7.newObject("Sketcher::SketchObject", "Sketch011")
sketch12.AttachmentSupport = (doc.getObject("YZ_Plane006"), [""])
sketch12.MapMode = "FlatFace"
sketch12.addGeometry([
    Part.LineSegment(App.Vector(-14.5, 11.5, 0), App.Vector(-13, 11.5, 0)),
    Part.ArcOfCircle(Part.Circle(App.Vector(-26.5, 10, 0), App.Vector(0, 0, 1), 13.6), math.radians(6), math.radians(47)),
    Part.LineSegment(App.Vector(-17.3, 20, 0), App.Vector(-18.3, 18.9, 0)),
    Part.ArcOfCircle(Part.Circle(App.Vector(-26.5, 10, 0), App.Vector(0, 0, 1), 12.1), math.radians(7), math.radians(47)),
], False)
sketch12.addGeometry(Part.LineSegment(App.Vector(-13, 10, 0), App.Vector(-26.5, 10, 0)), True)  # axis
sketch12.addConstraint([
    Sketcher.Constraint("Coincident", 0, 2, 1, 1),
    Sketcher.Constraint("Coincident", 1, 2, 2, 1),
    Sketcher.Constraint("Coincident", 2, 2, 3, 2),
    Sketcher.Constraint("Coincident", 3, 1, 0, 1),
    Sketcher.Constraint("Horizontal", 0),
    Sketcher.Constraint("Horizontal", 4),
    Sketcher.Constraint("Coincident", 3, 3, 1, 3),
    Sketcher.Constraint("Coincident", 4, 2, 1, 3),
    Sketcher.Constraint("Vertical", 0, 2, 4, 1),
    Sketcher.Constraint("DistanceX", 0, 1, 0, 2, Q("1.5 mm")),
    Sketcher.Constraint("DistanceY", -1, 1, 1, 3, Q("10 mm")),
    Sketcher.Constraint("DistanceX", 0, 2, -1, 1, Q("13 mm")),
    Sketcher.Constraint("DistanceY", -1, 1, 1, 2, Q("20 mm")),
    Sketcher.Constraint("DistanceY", -1, 1, 0, 2, Q("11.5 mm")),
    Sketcher.Constraint("DistanceX", 2, 2, -1, 1, Q("18.3 mm")),
    Sketcher.Constraint("Radius", 1, Q("13.624511 mm")),
])
sketch12.setExpression("Constraints[9]", "Params.sketch12_width")
revolution = body7.newObject("PartDesign::Revolution", "Revolution")
revolution.Profile = sketch12
revolution.ReferenceAxis = (sketch12, ["Axis0"])
revolution.setExpression("Angle", "Params.revolution_angle")
body8 = doc.addObject("PartDesign::Body", "Body007")

# Sketch on YZ plane
sketch13 = body8.newObject("Sketcher::SketchObject", "Sketch012")
sketch13.AttachmentSupport = (doc.getObject("YZ_Plane007"), [""])
sketch13.MapMode = "FlatFace"
sketch13.addGeometry([
    Part.ArcOfCircle(Part.Circle(App.Vector(26.5, 10, 0), App.Vector(0, 0, 1), 13.6), math.radians(133), math.radians(174)),
    Part.LineSegment(App.Vector(13, 11.5, 0), App.Vector(14.5, 11.5, 0)),
    Part.ArcOfCircle(Part.Circle(App.Vector(26.5, 10, 0), App.Vector(0, 0, 1), 12.1), math.radians(133), math.radians(173)),
    Part.LineSegment(App.Vector(18.3, 18.9, 0), App.Vector(17.3, 20, 0)),
], False)
sketch13.addGeometry(Part.LineSegment(App.Vector(26.5, 10, 0), App.Vector(13, 10, 0)), True)  # axis
sketch13.addConstraint([
    Sketcher.Constraint("Coincident", 0, 2, 1, 1),
    Sketcher.Constraint("Coincident", 1, 2, 2, 2),
    Sketcher.Constraint("Coincident", 2, 1, 3, 1),
    Sketcher.Constraint("Coincident", 3, 2, 0, 1),
    Sketcher.Constraint("Horizontal", 1),
    Sketcher.Constraint("Horizontal", 4),
    Sketcher.Constraint("Coincident", 2, 3, 0, 3),
    Sketcher.Constraint("Coincident", 4, 1, 0, 3),
    Sketcher.Constraint("Vertical", 0, 2, 4, 2),
    Sketcher.Constraint("DistanceX", 1, 1, 1, 2, Q("1.5 mm")),
    Sketcher.Constraint("DistanceY", -1, 1, 0, 3, Q("10 mm")),
    Sketcher.Constraint("DistanceX", -1, 1, 0, 2, Q("13 mm")),
    Sketcher.Constraint("DistanceY", -1, 1, 3, 2, Q("20 mm")),
    Sketcher.Constraint("DistanceY", -1, 1, 0, 2, Q("11.5 mm")),
    Sketcher.Constraint("DistanceX", -1, 1, 2, 1, Q("18.3 mm")),
    Sketcher.Constraint("Radius", 0, Q("13.624511 mm")),
])
sketch13.setExpression("Constraints[9]", "Params.sketch13_width")
revolution2 = body8.newObject("PartDesign::Revolution", "Revolution001")
revolution2.Profile = sketch13
revolution2.ReferenceAxis = (sketch13, ["Axis0"])
revolution2.setExpression("Angle", "Params.revolution2_angle")
body9 = doc.addObject("PartDesign::Body", "Body008")

# Sketch on XZ plane
sketch14 = body9.newObject("Sketcher::SketchObject", "Sketch013")
sketch14.AttachmentSupport = (doc.getObject("XZ_Plane008"), [""])
sketch14.MapMode = "FlatFace"
sketch14.addGeometry([
    Part.LineSegment(App.Vector(-17, 16.2, 0), App.Vector(-59, 16.2, 0)),  # 0
    Part.LineSegment(App.Vector(-59, 16.2, 0), App.Vector(-59, 14.2, 0)),  # 1
    Part.LineSegment(App.Vector(-59, 14.2, 0), App.Vector(-19, 14.2, 0)),  # 2
    Part.LineSegment(App.Vector(-19, 14.2, 0), App.Vector(-19, 4.2, 0)),  # 3
    Part.LineSegment(App.Vector(-19, 4.2, 0), App.Vector(-17, 4.2, 0)),  # 4
    Part.LineSegment(App.Vector(-17, 4.2, 0), App.Vector(-17, 16.2, 0)),  # 5
], False)
sketch14.addConstraint([
    Sketcher.Constraint("Coincident", 0, 2, 1, 1),
    Sketcher.Constraint("Coincident", 1, 2, 2, 1),
    Sketcher.Constraint("Coincident", 2, 2, 3, 1),
    Sketcher.Constraint("Coincident", 3, 2, 4, 1),
    Sketcher.Constraint("Coincident", 4, 2, 5, 1),
    Sketcher.Constraint("Coincident", 5, 2, 0, 1),
    Sketcher.Constraint("Horizontal", 0),
    Sketcher.Constraint("Vertical", 1),
    Sketcher.Constraint("Horizontal", 2),
    Sketcher.Constraint("Vertical", 3),
    Sketcher.Constraint("Horizontal", 4),
    Sketcher.Constraint("Vertical", 5),
    Sketcher.Constraint("Equal", 4, 1),
    Sketcher.Constraint("DistanceX", 0, 2, 0, 1, Q("42 mm")),
    Sketcher.Constraint("DistanceX", 2, 1, 2, 2, Q("40 mm")),
    Sketcher.Constraint("DistanceY", 3, 2, 3, 1, Q("10 mm")),
    Sketcher.Constraint("DistanceX", 0, 2, -1, 1, Q("59 mm")),
    Sketcher.Constraint("DistanceY", -1, 1, 0, 2, Q("16.25 mm")),
])
sketch14.setExpression("Constraints[13]", "Params.sketch14_width")
sketch14.setExpression("Constraints[14]", "Params.sketch14_width2")
sketch14.setExpression("Constraints[15]", "Params.sketch14_height")
pad8 = body9.newObject("PartDesign::Pad", "Pad007")
pad8.Profile = sketch14
pad8.setExpression("Length", "Params.pad8_length")
pad8.Midplane = True
body10 = doc.addObject("PartDesign::Body", "Body009")

# Sketch on XZ plane
sketch15 = body10.newObject("Sketcher::SketchObject", "Sketch014")
sketch15.AttachmentSupport = (doc.getObject("XZ_Plane009"), [""])
sketch15.MapMode = "FlatFace"
sketch15.addGeometry([
    Part.LineSegment(App.Vector(59, 14.2, 0), App.Vector(59, 16.2, 0)),  # 0
    Part.LineSegment(App.Vector(59, 16.2, 0), App.Vector(17, 16.2, 0)),  # 1
    Part.LineSegment(App.Vector(17, 16.2, 0), App.Vector(17, 4.2, 0)),  # 2
    Part.LineSegment(App.Vector(17, 4.2, 0), App.Vector(19, 4.2, 0)),  # 3
    Part.LineSegment(App.Vector(19, 4.2, 0), App.Vector(19, 14.2, 0)),  # 4
    Part.LineSegment(App.Vector(19, 14.2, 0), App.Vector(59, 14.2, 0)),  # 5
], False)
sketch15.addConstraint([
    Sketcher.Constraint("Coincident", 0, 2, 1, 1),
    Sketcher.Constraint("Coincident", 1, 2, 2, 1),
    Sketcher.Constraint("Coincident", 2, 2, 3, 1),
    Sketcher.Constraint("Coincident", 3, 2, 4, 1),
    Sketcher.Constraint("Coincident", 4, 2, 5, 1),
    Sketcher.Constraint("Coincident", 5, 2, 0, 1),
    Sketcher.Constraint("Vertical", 0),
    Sketcher.Constraint("Horizontal", 1),
    Sketcher.Constraint("Vertical", 2),
    Sketcher.Constraint("Horizontal", 3),
    Sketcher.Constraint("Vertical", 4),
    Sketcher.Constraint("Horizontal", 5),
    Sketcher.Constraint("Equal", 3, 0),
    Sketcher.Constraint("DistanceX", 1, 2, 1, 1, Q("42 mm")),
    Sketcher.Constraint("DistanceX", 3, 1, 3, 2, Q("2 mm")),
    Sketcher.Constraint("DistanceY", 2, 2, 2, 1, Q("12 mm")),
    Sketcher.Constraint("DistanceX", -1, 1, 0, 2, Q("59 mm")),
    Sketcher.Constraint("DistanceY", -1, 1, 0, 2, Q("16.25 mm")),
])
sketch15.setExpression("Constraints[13]", "Params.sketch15_width")
sketch15.setExpression("Constraints[14]", "Params.sketch15_width2")
sketch15.setExpression("Constraints[15]", "Params.sketch15_height")
pad9 = body10.newObject("PartDesign::Pad", "Pad008")
pad9.Profile = sketch15
pad9.setExpression("Length", "Params.pad9_length")
pad9.Midplane = True

doc.recompute()
